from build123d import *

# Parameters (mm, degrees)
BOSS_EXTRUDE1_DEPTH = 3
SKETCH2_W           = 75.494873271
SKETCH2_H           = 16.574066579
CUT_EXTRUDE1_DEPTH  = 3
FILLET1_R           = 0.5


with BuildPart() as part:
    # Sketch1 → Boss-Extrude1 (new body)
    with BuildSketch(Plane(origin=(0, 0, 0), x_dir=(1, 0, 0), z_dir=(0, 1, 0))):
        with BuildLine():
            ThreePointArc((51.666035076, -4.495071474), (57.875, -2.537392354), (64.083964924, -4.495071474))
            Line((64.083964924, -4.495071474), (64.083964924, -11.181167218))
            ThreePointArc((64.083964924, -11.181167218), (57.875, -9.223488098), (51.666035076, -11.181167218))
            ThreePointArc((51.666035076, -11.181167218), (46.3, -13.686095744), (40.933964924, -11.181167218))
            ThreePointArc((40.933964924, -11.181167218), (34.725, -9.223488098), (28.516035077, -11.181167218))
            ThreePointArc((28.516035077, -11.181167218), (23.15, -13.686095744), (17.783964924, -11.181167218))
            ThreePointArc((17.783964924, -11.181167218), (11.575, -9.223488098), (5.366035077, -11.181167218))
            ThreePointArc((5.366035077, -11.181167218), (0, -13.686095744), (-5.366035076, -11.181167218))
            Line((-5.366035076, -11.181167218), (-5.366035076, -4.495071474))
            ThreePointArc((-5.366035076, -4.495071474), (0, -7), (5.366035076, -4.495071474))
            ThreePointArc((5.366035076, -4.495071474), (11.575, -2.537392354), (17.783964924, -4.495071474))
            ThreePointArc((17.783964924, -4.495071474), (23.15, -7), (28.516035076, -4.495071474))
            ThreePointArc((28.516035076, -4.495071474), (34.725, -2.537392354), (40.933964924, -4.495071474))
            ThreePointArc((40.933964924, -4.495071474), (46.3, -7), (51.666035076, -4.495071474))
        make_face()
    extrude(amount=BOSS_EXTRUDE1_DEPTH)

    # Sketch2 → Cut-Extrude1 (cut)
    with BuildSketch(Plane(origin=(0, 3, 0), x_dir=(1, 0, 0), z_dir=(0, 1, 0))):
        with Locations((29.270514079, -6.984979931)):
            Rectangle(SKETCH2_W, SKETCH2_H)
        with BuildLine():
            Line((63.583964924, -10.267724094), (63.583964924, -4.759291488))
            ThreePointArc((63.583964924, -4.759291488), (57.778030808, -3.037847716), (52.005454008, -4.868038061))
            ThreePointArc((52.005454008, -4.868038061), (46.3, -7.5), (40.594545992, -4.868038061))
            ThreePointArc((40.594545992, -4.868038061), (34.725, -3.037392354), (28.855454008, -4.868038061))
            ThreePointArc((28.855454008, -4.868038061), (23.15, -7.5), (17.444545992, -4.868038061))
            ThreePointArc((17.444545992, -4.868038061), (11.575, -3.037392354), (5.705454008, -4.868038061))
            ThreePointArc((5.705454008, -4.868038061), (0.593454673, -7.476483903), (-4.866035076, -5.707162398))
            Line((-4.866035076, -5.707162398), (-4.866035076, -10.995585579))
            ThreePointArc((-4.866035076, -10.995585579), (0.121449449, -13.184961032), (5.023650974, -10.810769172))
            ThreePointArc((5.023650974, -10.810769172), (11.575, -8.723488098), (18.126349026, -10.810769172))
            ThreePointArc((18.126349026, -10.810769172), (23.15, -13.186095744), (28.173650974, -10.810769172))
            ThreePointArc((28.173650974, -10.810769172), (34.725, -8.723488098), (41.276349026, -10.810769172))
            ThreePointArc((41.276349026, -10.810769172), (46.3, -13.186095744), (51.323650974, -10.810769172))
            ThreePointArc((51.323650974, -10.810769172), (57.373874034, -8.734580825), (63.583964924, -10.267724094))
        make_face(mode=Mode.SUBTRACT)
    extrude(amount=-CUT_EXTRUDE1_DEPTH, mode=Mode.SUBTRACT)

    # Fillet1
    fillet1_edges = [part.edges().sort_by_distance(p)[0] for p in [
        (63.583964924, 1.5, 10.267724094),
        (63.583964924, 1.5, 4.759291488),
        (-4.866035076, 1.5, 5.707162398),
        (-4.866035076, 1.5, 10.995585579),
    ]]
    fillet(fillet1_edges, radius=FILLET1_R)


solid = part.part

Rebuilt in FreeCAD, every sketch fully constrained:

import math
import FreeCAD as App
import Part
import Sketcher
from FreeCAD import Vector


def edges_at(feature, points):
    """Names of the edges that pass closest to the given points."""
    edges = feature.Shape.Edges
    near = lambda p: min(range(len(edges)), key=lambda i: edges[i].distToShape(Part.Vertex(*p))[0])
    return sorted({f"Edge{near(p) + 1}" for p in points})

doc = App.newDocument("Part")
params = doc.addObject("Spreadsheet::Sheet", "Params")
for row, (alias, value) in enumerate([
    ("sketch1_radius", "7 mm"),
    ("pad1_length", "3 mm"),
    ("sketch2_radius", "6.5 mm"),
    ("sketch2_radius2", "7.5 mm"),
    ("pocket1_length", "3 mm"),
    ("fillet_radius", "0.5 mm"),
], start=1):
    params.set(f"A{row}", alias)
    params.set(f"B{row}", "=" + value)
    params.setAlias(f"B{row}", alias)

body = doc.addObject("PartDesign::Body", "Body")

# Sketch on XZ plane
sketch1 = body.newObject("Sketcher::SketchObject", "Sketch")
sketch1.AttachmentSupport = (doc.getObject("XZ_Plane"), [""])
sketch1.MapMode = "FlatFace"
sketch1.addGeometry([
    Part.ArcOfCircle(Part.Circle(Vector(57.875, 13.362392, 0), Vector(0, 0, 1), 10.825), math.radians(-125), math.radians(-55)),  # 0
    Part.ArcOfCircle(Part.Circle(Vector(46.3, 0, 0), Vector(0, 0, 1), 7), math.radians(39.952556), math.radians(140.047444)),  # 1
    Part.ArcOfCircle(Part.Circle(Vector(34.725, 13.362392, 0), Vector(0, 0, 1), 10.825), math.radians(-125), math.radians(-55)),  # 2
    Part.ArcOfCircle(Part.Circle(Vector(23.15, 0, 0), Vector(0, 0, 1), 7), math.radians(39.952556), math.radians(140.047444)),  # 3
    Part.ArcOfCircle(Part.Circle(Vector(11.575, 13.362392, 0), Vector(0, 0, 1), 10.825), math.radians(-125), math.radians(-55)),  # 4
    Part.ArcOfCircle(Part.Circle(Vector(0, 0, 0), Vector(0, 0, 1), 7), math.radians(39.952556), math.radians(140.047444)),  # 5
    Part.LineSegment(Vector(-5.366035, 4.495071, 0), Vector(-5.366035, 11.181167, 0)),  # 6
    Part.ArcOfCircle(Part.Circle(Vector(0, 6.686096, 0), Vector(0, 0, 1), 7), math.radians(39.952556), math.radians(140.047444)),  # 7
    Part.ArcOfCircle(Part.Circle(Vector(11.575, 20.048488, 0), Vector(0, 0, 1), 10.825), math.radians(-125), math.radians(-55)),  # 8
    Part.ArcOfCircle(Part.Circle(Vector(23.15, 6.686096, 0), Vector(0, 0, 1), 7), math.radians(39.952556), math.radians(140.047444)),  # 9
    Part.ArcOfCircle(Part.Circle(Vector(34.725, 20.048488, 0), Vector(0, 0, 1), 10.825), math.radians(-125), math.radians(-55)),  # 10
    Part.ArcOfCircle(Part.Circle(Vector(46.3, 6.686096, 0), Vector(0, 0, 1), 7), math.radians(39.952556), math.radians(140.047444)),  # 11
    Part.ArcOfCircle(Part.Circle(Vector(57.875, 20.048488, 0), Vector(0, 0, 1), 10.825), math.radians(-125), math.radians(-55)),  # 12
    Part.LineSegment(Vector(64.083965, 11.181167, 0), Vector(64.083965, 4.495071, 0)),  # 13
], False)
sketch1.addConstraint([
    Sketcher.Constraint("Coincident", 0, 1, 1, 1),
    Sketcher.Constraint("Coincident", 1, 2, 2, 2),
    Sketcher.Constraint("Coincident", 2, 1, 3, 1),
    Sketcher.Constraint("Coincident", 3, 2, 4, 2),
    Sketcher.Constraint("Coincident", 4, 1, 5, 1),
    Sketcher.Constraint("Coincident", 5, 2, 6, 1),
    Sketcher.Constraint("Coincident", 6, 2, 7, 2),
    Sketcher.Constraint("Coincident", 7, 1, 8, 1),
    Sketcher.Constraint("Coincident", 8, 2, 9, 2),
    Sketcher.Constraint("Coincident", 9, 1, 10, 1),
    Sketcher.Constraint("Coincident", 10, 2, 11, 2),
    Sketcher.Constraint("Coincident", 11, 1, 12, 1),
    Sketcher.Constraint("Coincident", 12, 2, 13, 1),
    Sketcher.Constraint("Coincident", 13, 2, 0, 2),
    Sketcher.Constraint("Vertical", 6),
    Sketcher.Constraint("Vertical", 13),
    Sketcher.Constraint("Coincident", 5, 3, -1, 1),
    Sketcher.Constraint("Equal", 0, 2),
    Sketcher.Constraint("Equal", 1, 3),
    Sketcher.Constraint("Equal", 2, 4),
    Sketcher.Constraint("Equal", 3, 5),
    Sketcher.Constraint("Equal", 5, 7),
    Sketcher.Constraint("Equal", 4, 8),
    Sketcher.Constraint("Equal", 7, 9),
    Sketcher.Constraint("Equal", 8, 10),
    Sketcher.Constraint("Equal", 9, 11),
    Sketcher.Constraint("Equal", 10, 12),
    Sketcher.Constraint("Symmetric", 6, 2, 7, 1, -2),
    Sketcher.Constraint("PointOnObject", 1, 3, -1),
    Sketcher.Constraint("PointOnObject", 3, 3, -1),
    Sketcher.Constraint("Horizontal", 0, 3, 2, 3),
    Sketcher.Constraint("Horizontal", 2, 3, 4, 3),
    Sketcher.Constraint("Horizontal", 7, 3, 9, 3),
    Sketcher.Constraint("Horizontal", 8, 3, 10, 3),
    Sketcher.Constraint("Horizontal", 9, 3, 11, 3),
    Sketcher.Constraint("Horizontal", 10, 3, 12, 3),
    Sketcher.Constraint("Horizontal", 0, 1, 1, 2),
    Sketcher.Constraint("Horizontal", 1, 2, 2, 1),
    Sketcher.Constraint("Horizontal", 2, 1, 3, 2),
    Sketcher.Constraint("Horizontal", 3, 2, 4, 1),
    Sketcher.Constraint("Horizontal", 4, 1, 5, 2),
    Sketcher.Constraint("Horizontal", 7, 1, 8, 2),
    Sketcher.Constraint("Horizontal", 8, 2, 9, 1),
    Sketcher.Constraint("Horizontal", 9, 1, 10, 2),
    Sketcher.Constraint("Horizontal", 10, 2, 11, 1),
    Sketcher.Constraint("Horizontal", 11, 1, 12, 2),
    Sketcher.Constraint("Horizontal", 5, 2, 13, 2),
    Sketcher.Constraint("Radius", 1, 7.0),
    Sketcher.Constraint("Radius", 0, 10.825),
    Sketcher.Constraint("DistanceX", -1, 1, 1, 3, 46.3),
    Sketcher.Constraint("DistanceY", 6, 1, 6, 2, 6.686096),
    Sketcher.Constraint("DistanceY", -1, 1, 8, 3, 20.048488),
])
sketch1.setExpression("Constraints[47]", "Params.sketch1_radius")
pad1 = body.newObject("PartDesign::Pad", "Pad")
pad1.Profile = sketch1
pad1.setExpression("Length", "Params.pad1_length")
pad1.Reversed = True

# Sketch on XZ plane
sketch2 = body.newObject("Sketcher::SketchObject", "Sketch001")
sketch2.AttachmentSupport = (doc.getObject("XZ_Plane"), [""])
sketch2.MapMode = "FlatFace"
sketch2.AttachmentOffset = App.Placement(Vector(0, 0, -3), App.Rotation())
sketch2.addGeometry([
    Part.LineSegment(Vector(-8.476923, -1.302053, 0), Vector(-8.476923, 15.272013, 0)),  # 0
    Part.LineSegment(Vector(-8.476923, 15.272013, 0), Vector(67.017951, 15.272013, 0)),  # 1
    Part.LineSegment(Vector(67.017951, 15.272013, 0), Vector(67.017951, -1.302053, 0)),  # 2
    Part.LineSegment(Vector(67.017951, -1.302053, 0), Vector(-8.476923, -1.302053, 0)),  # 3
    Part.LineSegment(Vector(63.583965, 4.759291, 0), Vector(63.583965, 10.267724, 0)),  # 4
    Part.ArcOfCircle(Part.Circle(Vector(57.875, 20.048488, 0), Vector(0, 0, 1), 11.325), math.radians(-125.344096), math.radians(-59.728183)),  # 5
    Part.ArcOfCircle(Part.Circle(Vector(46.3, 6.686096, 0), Vector(0, 0, 1), 6.5), math.radians(39.387739), math.radians(140.612261)),  # 6
    Part.ArcOfCircle(Part.Circle(Vector(34.725, 20.048488, 0), Vector(0, 0, 1), 11.325), math.radians(-125.344096), math.radians(-54.655904)),  # 7
    Part.ArcOfCircle(Part.Circle(Vector(23.15, 6.686096, 0), Vector(0, 0, 1), 6.5), math.radians(39.387739), math.radians(140.612261)),  # 8
    Part.ArcOfCircle(Part.Circle(Vector(11.575, 20.048488, 0), Vector(0, 0, 1), 11.325), math.radians(-125.344096), math.radians(-54.655904)),  # 9
    Part.ArcOfCircle(Part.Circle(Vector(0, 6.686096, 0), Vector(0, 0, 1), 6.5), math.radians(39.387739), math.radians(138.471047)),  # 10
    Part.LineSegment(Vector(-4.866035, 10.995586, 0), Vector(-4.866035, 5.707162, 0)),  # 11
    Part.ArcOfCircle(Part.Circle(Vector(0, 0, 0), Vector(0, 0, 1), 7.5), math.radians(40.471652), math.radians(130.45154)),  # 12
    Part.ArcOfCircle(Part.Circle(Vector(11.575, 13.362392, 0), Vector(0, 0, 1), 10.325), math.radians(-124.644232), math.radians(-55.355768)),  # 13
    Part.ArcOfCircle(Part.Circle(Vector(23.15, 0, 0), Vector(0, 0, 1), 7.5), math.radians(40.471652), math.radians(139.528348)),  # 14
    Part.ArcOfCircle(Part.Circle(Vector(34.725, 13.362392, 0), Vector(0, 0, 1), 10.325), math.radians(-124.644232), math.radians(-55.355768)),  # 15
    Part.ArcOfCircle(Part.Circle(Vector(46.3, 0, 0), Vector(0, 0, 1), 7.5), math.radians(40.471652), math.radians(139.528348)),  # 16
    Part.ArcOfCircle(Part.Circle(Vector(57.875, 13.362392, 0), Vector(0, 0, 1), 10.325), math.radians(-124.644232), math.radians(-56.431992)),  # 17
], False)
sketch2.addConstraint([
    Sketcher.Constraint("Coincident", 0, 2, 1, 1),
    Sketcher.Constraint("Coincident", 1, 2, 2, 1),
    Sketcher.Constraint("Coincident", 2, 2, 3, 1),
    Sketcher.Constraint("Coincident", 3, 2, 0, 1),
    Sketcher.Constraint("Coincident", 4, 2, 5, 2),
    Sketcher.Constraint("Coincident", 5, 1, 6, 1),
    Sketcher.Constraint("Coincident", 6, 2, 7, 2),
    Sketcher.Constraint("Coincident", 7, 1, 8, 1),
    Sketcher.Constraint("Coincident", 8, 2, 9, 2),
    Sketcher.Constraint("Coincident", 9, 1, 10, 1),
    Sketcher.Constraint("Coincident", 10, 2, 11, 1),
    Sketcher.Constraint("Coincident", 11, 2, 12, 2),
    Sketcher.Constraint("Coincident", 12, 1, 13, 1),
    Sketcher.Constraint("Coincident", 13, 2, 14, 2),
    Sketcher.Constraint("Coincident", 14, 1, 15, 1),
    Sketcher.Constraint("Coincident", 15, 2, 16, 2),
    Sketcher.Constraint("Coincident", 16, 1, 17, 1),
    Sketcher.Constraint("Coincident", 17, 2, 4, 1),
    Sketcher.Constraint("Vertical", 0),
    Sketcher.Constraint("Horizontal", 1),
    Sketcher.Constraint("Vertical", 2),
    Sketcher.Constraint("Horizontal", 3),
    Sketcher.Constraint("Vertical", 4),
    Sketcher.Constraint("Vertical", 11),
    Sketcher.Constraint("Coincident", 12, 3, -1, 1),
    Sketcher.Constraint("Equal", 5, 7),
    Sketcher.Constraint("Equal", 6, 8),
    Sketcher.Constraint("Equal", 7, 9),
    Sketcher.Constraint("Equal", 8, 10),
    Sketcher.Constraint("Equal", 12, 14),
    Sketcher.Constraint("Equal", 13, 15),
    Sketcher.Constraint("Equal", 14, 16),
    Sketcher.Constraint("Equal", 15, 17),
    Sketcher.Constraint("PointOnObject", 10, 3, -2),
    Sketcher.Constraint("PointOnObject", 14, 3, -1),
    Sketcher.Constraint("PointOnObject", 16, 3, -1),
    Sketcher.Constraint("Horizontal", 5, 3, 7, 3),
    Sketcher.Constraint("Horizontal", 6, 3, 8, 3),
    Sketcher.Constraint("Horizontal", 7, 3, 9, 3),
    Sketcher.Constraint("Horizontal", 8, 3, 10, 3),
    Sketcher.Constraint("Horizontal", 13, 3, 15, 3),
    Sketcher.Constraint("Horizontal", 15, 3, 17, 3),
    Sketcher.Constraint("Horizontal", 5, 1, 6, 2),
    Sketcher.Constraint("Horizontal", 6, 2, 7, 1),
    Sketcher.Constraint("Horizontal", 7, 1, 8, 2),
    Sketcher.Constraint("Horizontal", 8, 2, 9, 1),
    Sketcher.Constraint("Horizontal", 12, 1, 13, 2),
    Sketcher.Constraint("Horizontal", 13, 2, 14, 1),
    Sketcher.Constraint("Horizontal", 14, 1, 15, 2),
    Sketcher.Constraint("Horizontal", 15, 2, 16, 1),
    Sketcher.Constraint("Vertical", 9, 3, 13, 3),
    Sketcher.Constraint("Radius", 6, 6.5),
    Sketcher.Constraint("Radius", 12, 7.5),
    Sketcher.Constraint("Radius", 5, 11.325),
    Sketcher.Constraint("Radius", 13, 10.325),
    Sketcher.Constraint("DistanceX", -1, 1, 6, 3, 46.3),
    Sketcher.Constraint("DistanceX", 6, 2, 5, 1, 10.047302),
    Sketcher.Constraint("DistanceY", 17, 2, 17, 3, 8.603101),
    Sketcher.Constraint("DistanceX", 1, 1, 1, 2, 75.494873),
    Sketcher.Constraint("DistanceY", 0, 1, 0, 2, 16.574067),
    Sketcher.Constraint("DistanceY", 4, 1, 4, 2, 5.508433),
    Sketcher.Constraint("DistanceY", 11, 2, 11, 1, 5.288423),
    Sketcher.Constraint("DistanceY", -1, 1, 5, 3, 20.048488),
    Sketcher.Constraint("DistanceX", -1, 1, 1, 2, 67.017951),
    Sketcher.Constraint("DistanceY", 13, 3, 0, 2, 1.909621),
])
sketch2.setExpression("Constraints[51]", "Params.sketch2_radius")
sketch2.setExpression("Constraints[52]", "Params.sketch2_radius2")
pocket1 = body.newObject("PartDesign::Pocket", "Pocket")
pocket1.Profile = sketch2
pocket1.setExpression("Length", "Params.pocket1_length")
pocket1.Reversed = True
doc.recompute()

fillet = body.newObject("PartDesign::Fillet", "Fillet")
fillet.Base = (pocket1, edges_at(pocket1, [
    (63.584, 1.5, 10.268),
    (63.584, 1.5, 4.759),
    (-4.866, 1.5, 5.707),
    (-4.866, 1.5, 10.996),
]))
fillet.setExpression("Radius", "Params.fillet_radius")

doc.recompute()
